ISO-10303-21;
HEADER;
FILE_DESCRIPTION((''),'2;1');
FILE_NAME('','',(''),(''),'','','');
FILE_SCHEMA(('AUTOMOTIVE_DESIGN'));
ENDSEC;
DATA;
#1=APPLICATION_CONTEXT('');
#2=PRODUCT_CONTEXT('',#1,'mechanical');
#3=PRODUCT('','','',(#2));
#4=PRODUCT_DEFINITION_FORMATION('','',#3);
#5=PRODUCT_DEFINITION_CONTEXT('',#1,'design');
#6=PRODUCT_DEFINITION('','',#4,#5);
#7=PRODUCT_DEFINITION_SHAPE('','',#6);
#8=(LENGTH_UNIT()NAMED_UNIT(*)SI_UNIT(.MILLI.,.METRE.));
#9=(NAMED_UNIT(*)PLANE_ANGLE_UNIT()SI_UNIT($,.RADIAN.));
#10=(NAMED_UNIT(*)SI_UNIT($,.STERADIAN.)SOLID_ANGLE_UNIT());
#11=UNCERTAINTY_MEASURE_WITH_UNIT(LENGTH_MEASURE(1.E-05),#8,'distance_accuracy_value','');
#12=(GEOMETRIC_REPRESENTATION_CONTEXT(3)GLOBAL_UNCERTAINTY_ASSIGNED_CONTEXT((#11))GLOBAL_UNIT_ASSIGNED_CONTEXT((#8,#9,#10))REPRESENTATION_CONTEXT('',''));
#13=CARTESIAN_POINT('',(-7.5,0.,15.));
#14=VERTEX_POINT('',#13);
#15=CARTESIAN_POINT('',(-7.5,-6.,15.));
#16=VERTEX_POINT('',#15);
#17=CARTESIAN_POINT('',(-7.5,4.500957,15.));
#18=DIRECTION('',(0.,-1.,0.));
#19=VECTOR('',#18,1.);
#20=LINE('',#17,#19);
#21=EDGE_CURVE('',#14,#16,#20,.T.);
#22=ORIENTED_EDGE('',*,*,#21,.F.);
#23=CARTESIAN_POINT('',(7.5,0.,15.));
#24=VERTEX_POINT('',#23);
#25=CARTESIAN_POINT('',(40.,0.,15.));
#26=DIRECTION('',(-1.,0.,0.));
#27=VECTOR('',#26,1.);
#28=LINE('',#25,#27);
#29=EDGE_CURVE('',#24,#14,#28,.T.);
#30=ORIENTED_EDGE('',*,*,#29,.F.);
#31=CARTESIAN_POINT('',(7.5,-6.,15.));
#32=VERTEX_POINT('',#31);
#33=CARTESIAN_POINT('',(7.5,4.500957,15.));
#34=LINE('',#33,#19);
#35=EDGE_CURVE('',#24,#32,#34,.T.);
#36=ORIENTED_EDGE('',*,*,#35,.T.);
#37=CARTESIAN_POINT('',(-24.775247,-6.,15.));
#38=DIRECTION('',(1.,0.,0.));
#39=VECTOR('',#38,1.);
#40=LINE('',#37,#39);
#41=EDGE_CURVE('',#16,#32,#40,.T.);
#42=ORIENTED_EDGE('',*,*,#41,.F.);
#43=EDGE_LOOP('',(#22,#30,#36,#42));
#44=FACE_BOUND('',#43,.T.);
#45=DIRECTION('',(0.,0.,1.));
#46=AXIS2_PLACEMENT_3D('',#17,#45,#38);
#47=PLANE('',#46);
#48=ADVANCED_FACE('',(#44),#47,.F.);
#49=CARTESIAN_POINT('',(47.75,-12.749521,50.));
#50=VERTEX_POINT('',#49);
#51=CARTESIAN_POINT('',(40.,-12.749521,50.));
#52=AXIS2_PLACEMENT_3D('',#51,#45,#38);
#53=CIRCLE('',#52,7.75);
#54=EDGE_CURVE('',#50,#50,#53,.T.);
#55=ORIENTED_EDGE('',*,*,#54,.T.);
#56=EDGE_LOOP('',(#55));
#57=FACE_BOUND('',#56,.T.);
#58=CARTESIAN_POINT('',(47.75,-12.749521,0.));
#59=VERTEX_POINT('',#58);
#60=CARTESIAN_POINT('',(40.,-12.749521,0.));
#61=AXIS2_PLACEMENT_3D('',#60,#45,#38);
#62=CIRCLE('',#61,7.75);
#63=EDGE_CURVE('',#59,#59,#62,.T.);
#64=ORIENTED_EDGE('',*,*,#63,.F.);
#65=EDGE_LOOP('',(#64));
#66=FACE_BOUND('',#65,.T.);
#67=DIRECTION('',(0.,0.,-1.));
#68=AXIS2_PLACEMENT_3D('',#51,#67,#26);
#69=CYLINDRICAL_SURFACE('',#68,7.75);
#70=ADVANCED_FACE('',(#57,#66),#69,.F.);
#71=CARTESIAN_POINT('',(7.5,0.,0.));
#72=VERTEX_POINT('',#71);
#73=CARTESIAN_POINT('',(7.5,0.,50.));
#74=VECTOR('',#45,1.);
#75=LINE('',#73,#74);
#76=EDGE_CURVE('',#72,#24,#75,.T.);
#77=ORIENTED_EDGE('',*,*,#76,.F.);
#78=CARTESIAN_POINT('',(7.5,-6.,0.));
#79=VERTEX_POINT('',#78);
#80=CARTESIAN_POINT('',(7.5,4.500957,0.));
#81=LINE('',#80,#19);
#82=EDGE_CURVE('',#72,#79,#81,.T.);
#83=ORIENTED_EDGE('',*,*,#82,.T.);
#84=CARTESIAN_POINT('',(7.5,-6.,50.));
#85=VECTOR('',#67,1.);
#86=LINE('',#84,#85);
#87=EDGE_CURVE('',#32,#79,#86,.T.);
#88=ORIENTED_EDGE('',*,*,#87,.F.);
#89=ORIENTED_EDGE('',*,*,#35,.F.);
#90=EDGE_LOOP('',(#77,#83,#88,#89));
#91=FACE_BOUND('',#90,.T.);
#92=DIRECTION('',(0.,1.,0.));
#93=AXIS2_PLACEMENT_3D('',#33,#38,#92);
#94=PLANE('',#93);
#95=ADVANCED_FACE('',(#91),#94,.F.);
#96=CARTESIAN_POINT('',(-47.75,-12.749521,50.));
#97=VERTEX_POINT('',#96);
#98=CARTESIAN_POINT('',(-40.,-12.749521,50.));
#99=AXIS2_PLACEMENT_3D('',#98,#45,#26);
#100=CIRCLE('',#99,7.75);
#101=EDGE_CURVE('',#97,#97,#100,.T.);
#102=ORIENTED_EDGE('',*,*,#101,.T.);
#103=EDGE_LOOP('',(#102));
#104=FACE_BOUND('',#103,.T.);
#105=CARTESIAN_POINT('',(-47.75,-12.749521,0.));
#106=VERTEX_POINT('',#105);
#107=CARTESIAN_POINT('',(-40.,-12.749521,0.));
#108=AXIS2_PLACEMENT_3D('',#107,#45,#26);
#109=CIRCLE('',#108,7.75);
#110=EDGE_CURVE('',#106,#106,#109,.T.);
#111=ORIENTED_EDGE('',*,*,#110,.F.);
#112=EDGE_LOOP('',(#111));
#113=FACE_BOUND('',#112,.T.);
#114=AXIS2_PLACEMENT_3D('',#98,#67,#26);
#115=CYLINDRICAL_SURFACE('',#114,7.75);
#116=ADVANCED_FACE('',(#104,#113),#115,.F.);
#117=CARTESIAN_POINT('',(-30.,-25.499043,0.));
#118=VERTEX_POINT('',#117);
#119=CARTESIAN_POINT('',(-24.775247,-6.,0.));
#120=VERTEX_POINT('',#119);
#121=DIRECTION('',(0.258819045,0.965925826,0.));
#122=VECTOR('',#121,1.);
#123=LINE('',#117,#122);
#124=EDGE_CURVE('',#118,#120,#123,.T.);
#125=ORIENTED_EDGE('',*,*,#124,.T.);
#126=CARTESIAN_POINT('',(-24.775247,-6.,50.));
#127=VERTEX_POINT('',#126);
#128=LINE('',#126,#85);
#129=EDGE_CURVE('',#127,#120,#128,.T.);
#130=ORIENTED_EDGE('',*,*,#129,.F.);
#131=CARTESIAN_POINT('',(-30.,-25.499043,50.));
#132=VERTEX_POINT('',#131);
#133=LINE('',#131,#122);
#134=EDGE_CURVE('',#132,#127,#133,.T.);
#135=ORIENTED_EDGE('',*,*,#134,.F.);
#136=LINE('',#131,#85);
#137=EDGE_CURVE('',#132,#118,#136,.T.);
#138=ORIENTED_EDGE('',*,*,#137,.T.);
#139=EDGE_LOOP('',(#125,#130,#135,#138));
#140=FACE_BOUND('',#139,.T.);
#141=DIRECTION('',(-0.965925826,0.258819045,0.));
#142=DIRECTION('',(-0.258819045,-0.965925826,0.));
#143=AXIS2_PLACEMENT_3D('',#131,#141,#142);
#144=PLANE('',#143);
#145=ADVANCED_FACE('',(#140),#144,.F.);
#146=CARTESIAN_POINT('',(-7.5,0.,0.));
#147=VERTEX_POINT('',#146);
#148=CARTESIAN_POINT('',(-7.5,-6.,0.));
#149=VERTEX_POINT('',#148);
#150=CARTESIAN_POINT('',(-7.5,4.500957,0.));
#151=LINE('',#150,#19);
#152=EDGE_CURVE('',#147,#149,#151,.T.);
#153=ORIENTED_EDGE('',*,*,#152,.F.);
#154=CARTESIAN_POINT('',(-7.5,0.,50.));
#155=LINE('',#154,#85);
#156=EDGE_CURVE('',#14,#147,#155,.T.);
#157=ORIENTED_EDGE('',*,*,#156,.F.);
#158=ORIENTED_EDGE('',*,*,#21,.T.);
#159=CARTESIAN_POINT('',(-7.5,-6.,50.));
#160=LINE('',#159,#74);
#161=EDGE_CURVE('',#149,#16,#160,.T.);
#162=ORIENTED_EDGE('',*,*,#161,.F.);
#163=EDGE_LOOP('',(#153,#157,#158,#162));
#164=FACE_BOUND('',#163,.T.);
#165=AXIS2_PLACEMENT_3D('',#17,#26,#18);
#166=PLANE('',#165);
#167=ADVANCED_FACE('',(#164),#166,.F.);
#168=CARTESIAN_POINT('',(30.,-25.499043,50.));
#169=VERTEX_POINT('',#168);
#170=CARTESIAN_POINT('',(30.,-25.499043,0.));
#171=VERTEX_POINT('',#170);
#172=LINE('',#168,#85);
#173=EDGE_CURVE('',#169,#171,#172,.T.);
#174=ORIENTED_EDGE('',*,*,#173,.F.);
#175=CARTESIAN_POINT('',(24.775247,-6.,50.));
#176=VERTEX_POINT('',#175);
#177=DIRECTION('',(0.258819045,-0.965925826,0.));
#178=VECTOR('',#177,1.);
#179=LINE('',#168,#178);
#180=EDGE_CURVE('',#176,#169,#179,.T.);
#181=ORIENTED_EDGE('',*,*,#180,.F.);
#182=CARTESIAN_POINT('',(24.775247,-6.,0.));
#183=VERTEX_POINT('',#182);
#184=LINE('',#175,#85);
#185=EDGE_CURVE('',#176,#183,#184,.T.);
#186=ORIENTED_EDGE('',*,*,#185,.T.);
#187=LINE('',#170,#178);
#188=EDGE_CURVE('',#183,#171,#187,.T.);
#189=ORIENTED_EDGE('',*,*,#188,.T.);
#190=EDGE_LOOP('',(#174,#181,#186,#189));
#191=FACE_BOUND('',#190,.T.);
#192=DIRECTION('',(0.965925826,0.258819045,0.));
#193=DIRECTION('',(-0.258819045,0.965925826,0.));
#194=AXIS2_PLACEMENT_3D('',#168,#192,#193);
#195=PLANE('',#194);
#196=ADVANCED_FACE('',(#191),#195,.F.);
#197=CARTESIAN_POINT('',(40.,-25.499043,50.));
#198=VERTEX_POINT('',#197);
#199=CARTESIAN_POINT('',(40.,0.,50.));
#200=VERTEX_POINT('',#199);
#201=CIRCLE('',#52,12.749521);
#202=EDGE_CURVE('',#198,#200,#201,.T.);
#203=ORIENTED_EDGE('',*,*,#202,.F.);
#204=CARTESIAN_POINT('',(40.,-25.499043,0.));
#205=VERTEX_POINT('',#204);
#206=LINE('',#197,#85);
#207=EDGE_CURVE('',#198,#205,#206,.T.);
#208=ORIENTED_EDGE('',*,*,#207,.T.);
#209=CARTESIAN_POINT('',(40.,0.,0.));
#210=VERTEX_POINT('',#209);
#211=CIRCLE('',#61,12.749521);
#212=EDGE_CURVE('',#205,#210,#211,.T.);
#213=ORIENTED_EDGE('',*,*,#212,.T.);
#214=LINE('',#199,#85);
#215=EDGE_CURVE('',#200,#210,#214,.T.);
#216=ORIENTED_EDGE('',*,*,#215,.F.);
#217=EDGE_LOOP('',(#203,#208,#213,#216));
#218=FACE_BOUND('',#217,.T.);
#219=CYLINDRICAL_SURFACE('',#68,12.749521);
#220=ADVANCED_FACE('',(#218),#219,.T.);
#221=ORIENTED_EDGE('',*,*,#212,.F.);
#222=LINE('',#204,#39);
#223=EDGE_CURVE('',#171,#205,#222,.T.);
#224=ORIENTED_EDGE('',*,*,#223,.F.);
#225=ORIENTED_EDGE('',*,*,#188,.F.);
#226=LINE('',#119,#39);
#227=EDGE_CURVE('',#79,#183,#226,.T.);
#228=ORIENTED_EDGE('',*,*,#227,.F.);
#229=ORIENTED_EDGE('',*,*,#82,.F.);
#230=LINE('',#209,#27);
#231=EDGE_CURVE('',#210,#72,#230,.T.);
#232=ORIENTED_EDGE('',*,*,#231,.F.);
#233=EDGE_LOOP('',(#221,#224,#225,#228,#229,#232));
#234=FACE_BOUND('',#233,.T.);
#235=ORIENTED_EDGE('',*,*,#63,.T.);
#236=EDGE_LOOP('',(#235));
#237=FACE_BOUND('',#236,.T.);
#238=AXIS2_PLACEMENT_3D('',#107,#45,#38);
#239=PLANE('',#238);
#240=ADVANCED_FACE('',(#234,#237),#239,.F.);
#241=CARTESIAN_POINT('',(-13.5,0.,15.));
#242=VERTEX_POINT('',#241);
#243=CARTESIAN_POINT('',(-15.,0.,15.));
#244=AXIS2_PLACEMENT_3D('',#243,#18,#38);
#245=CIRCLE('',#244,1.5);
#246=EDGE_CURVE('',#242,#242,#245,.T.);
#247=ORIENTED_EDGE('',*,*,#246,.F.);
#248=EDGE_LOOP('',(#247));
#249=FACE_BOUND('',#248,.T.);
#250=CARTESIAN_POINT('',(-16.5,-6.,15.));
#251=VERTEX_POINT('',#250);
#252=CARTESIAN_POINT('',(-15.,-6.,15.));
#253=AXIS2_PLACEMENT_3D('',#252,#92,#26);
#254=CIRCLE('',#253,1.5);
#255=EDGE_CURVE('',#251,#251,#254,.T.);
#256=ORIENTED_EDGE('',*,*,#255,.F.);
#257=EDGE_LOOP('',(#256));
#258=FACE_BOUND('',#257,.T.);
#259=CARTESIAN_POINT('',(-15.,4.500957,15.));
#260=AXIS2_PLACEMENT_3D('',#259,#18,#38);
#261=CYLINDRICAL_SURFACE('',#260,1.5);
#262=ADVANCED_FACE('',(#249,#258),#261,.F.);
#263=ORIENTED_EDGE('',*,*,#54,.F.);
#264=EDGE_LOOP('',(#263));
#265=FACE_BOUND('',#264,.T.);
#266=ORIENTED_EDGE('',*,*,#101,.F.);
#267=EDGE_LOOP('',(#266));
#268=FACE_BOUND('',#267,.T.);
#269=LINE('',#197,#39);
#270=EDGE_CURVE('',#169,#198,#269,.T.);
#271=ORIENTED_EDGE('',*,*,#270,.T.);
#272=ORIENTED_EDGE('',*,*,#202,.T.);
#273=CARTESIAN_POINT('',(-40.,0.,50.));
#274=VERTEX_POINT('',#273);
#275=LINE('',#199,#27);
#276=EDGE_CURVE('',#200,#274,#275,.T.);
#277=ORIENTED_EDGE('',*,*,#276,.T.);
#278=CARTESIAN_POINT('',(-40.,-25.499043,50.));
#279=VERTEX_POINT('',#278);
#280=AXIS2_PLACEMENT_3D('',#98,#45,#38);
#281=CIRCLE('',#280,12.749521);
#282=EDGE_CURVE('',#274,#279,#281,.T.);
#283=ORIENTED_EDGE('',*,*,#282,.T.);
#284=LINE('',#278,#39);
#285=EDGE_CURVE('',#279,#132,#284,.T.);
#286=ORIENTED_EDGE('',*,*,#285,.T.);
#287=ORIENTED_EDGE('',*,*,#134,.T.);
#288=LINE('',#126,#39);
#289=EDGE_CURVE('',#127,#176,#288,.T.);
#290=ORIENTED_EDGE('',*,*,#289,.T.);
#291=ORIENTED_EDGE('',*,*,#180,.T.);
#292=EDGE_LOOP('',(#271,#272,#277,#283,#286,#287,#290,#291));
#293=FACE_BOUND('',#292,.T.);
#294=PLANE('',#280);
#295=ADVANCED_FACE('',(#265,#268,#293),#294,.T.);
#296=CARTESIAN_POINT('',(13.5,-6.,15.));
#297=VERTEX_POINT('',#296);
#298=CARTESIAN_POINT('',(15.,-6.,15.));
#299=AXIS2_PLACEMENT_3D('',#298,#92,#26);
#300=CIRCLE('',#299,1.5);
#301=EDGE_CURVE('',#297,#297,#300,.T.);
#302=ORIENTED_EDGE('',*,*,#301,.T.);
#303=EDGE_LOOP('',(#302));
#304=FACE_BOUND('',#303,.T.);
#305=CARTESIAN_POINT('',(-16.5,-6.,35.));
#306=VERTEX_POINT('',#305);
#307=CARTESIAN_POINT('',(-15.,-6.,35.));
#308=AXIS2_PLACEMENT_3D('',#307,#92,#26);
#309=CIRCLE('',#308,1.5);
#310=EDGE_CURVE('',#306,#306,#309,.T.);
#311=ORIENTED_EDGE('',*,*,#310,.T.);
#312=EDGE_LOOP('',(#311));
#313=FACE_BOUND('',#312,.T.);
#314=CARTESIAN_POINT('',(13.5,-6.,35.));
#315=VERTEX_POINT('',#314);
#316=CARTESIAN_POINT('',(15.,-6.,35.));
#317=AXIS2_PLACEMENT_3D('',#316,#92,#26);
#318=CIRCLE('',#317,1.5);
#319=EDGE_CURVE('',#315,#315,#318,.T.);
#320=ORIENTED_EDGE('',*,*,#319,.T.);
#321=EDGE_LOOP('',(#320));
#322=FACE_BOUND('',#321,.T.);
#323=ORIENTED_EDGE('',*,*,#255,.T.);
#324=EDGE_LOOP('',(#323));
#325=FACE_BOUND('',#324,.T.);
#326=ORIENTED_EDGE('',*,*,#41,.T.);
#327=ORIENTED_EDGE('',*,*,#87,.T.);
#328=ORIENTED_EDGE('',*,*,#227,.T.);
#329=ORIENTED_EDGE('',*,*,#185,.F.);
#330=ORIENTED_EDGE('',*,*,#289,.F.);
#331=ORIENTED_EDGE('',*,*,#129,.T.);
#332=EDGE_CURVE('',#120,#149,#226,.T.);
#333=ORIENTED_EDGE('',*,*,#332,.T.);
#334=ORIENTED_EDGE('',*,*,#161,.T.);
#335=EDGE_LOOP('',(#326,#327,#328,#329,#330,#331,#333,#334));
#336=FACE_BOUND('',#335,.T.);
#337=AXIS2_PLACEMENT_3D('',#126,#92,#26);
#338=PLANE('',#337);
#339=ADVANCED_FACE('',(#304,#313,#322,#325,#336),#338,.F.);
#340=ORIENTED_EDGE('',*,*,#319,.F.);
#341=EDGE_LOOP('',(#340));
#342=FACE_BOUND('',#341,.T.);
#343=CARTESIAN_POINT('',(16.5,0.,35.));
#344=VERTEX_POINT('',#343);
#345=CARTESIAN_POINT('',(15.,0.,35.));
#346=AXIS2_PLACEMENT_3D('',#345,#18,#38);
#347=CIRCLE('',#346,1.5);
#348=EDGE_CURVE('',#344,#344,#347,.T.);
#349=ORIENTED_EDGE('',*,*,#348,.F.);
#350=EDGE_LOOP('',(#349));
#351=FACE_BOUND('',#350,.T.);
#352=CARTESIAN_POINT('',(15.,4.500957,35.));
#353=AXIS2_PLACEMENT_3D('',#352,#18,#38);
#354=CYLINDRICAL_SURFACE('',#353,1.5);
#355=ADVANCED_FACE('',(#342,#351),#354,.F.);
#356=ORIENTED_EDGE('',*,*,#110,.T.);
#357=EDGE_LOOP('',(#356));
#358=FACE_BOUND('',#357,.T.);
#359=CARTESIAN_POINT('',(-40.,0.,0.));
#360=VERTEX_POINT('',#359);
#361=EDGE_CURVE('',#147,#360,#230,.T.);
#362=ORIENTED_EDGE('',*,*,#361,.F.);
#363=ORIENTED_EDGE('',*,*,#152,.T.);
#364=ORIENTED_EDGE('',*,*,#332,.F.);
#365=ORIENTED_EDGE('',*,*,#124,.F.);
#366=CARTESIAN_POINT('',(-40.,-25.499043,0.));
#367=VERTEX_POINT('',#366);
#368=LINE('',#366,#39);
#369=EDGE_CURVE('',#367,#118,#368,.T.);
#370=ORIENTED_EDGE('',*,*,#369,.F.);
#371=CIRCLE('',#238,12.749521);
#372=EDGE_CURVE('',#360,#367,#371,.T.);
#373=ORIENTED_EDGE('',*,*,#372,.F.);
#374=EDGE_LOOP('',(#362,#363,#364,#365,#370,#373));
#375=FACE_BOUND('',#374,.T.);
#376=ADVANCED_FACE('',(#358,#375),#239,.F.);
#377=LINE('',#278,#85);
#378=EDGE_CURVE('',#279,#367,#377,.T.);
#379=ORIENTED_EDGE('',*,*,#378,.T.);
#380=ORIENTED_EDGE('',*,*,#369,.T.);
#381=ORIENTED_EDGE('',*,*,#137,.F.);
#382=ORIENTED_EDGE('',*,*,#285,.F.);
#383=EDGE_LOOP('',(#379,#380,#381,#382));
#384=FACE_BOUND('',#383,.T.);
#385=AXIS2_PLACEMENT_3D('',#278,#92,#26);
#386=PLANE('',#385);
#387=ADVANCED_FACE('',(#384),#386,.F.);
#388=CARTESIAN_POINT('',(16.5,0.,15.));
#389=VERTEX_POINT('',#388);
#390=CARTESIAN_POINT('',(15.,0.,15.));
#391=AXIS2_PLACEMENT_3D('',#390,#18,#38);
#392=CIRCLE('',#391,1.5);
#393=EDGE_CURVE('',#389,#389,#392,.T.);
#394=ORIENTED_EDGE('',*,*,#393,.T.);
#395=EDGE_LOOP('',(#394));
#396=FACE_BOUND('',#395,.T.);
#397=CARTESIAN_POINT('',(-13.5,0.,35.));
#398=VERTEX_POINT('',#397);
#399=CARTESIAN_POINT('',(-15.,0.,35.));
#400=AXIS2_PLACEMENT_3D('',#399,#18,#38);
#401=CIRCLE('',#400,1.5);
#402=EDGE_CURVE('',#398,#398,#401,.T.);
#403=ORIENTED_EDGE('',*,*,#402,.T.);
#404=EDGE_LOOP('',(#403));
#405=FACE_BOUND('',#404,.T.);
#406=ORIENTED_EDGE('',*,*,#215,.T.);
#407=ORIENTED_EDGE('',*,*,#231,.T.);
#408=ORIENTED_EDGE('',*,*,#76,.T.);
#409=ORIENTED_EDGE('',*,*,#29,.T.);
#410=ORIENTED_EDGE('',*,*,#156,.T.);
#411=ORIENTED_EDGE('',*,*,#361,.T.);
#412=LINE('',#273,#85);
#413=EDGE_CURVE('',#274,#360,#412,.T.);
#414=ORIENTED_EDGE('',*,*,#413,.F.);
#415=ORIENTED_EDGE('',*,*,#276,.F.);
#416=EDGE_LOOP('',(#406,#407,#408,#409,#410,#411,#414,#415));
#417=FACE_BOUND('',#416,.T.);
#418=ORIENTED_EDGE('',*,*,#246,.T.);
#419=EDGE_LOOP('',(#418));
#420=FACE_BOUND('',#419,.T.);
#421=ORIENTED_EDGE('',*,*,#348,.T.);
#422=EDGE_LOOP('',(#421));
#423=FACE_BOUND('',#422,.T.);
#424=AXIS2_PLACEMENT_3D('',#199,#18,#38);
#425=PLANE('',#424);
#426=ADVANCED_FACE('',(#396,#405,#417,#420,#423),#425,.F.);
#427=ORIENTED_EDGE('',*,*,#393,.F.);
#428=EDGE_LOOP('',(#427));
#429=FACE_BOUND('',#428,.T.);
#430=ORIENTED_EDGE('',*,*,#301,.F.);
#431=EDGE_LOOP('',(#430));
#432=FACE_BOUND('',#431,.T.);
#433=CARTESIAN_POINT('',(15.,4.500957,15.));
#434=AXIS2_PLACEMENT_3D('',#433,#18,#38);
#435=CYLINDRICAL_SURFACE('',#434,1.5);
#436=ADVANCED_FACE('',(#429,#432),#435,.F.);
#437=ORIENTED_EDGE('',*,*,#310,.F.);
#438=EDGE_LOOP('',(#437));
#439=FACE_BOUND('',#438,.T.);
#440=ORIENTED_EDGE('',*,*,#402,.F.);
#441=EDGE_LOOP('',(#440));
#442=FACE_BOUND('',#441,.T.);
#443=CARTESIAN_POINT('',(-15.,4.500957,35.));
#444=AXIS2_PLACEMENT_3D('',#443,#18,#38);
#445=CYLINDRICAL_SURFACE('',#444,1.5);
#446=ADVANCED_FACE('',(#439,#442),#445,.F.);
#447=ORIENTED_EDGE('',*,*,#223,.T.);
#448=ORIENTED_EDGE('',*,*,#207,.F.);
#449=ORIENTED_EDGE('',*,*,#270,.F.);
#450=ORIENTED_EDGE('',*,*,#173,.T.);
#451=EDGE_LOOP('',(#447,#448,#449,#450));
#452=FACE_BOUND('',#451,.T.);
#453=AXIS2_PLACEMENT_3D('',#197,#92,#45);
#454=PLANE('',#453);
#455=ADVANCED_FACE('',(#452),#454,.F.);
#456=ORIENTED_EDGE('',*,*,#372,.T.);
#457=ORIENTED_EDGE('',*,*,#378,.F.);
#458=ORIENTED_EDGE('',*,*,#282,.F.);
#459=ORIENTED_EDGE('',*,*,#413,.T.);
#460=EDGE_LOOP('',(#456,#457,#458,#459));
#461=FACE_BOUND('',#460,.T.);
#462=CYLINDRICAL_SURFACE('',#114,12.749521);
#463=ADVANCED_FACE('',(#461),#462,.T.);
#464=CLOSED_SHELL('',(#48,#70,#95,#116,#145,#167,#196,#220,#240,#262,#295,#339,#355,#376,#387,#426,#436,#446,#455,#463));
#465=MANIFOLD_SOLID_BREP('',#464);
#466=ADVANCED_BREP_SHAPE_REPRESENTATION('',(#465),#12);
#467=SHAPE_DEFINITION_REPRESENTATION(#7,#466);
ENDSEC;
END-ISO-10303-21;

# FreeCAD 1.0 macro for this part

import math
import FreeCAD as App
import Part
import Sketcher
Q = App.Units.Quantity


def add_polygon(sketch, points):
    """Adds a closed chain of lines whose ends are joined by coincident constraints."""
    first, n = sketch.GeometryCount, len(points)
    for a, b in zip(points, points[1:] + points[:1]):
        sketch.addGeometry(Part.LineSegment(App.Vector(*a, 0), App.Vector(*b, 0)), False)
    for i in range(n):
        sketch.addConstraint(Sketcher.Constraint("Coincident", first + i, 2, first + (i + 1) % n, 1))

doc = App.newDocument("Part")
body = doc.addObject("PartDesign::Body", "Body")

# Sketch on XY plane
sketch1 = body.newObject("Sketcher::SketchObject", "Sketch")
sketch1.AttachmentSupport = (doc.getObject("XY_Plane"), [""])
sketch1.MapMode = "FlatFace"
sketch1.addGeometry([
    Part.LineSegment(App.Vector(40, 0, 0), App.Vector(-40, 0, 0)),  # 0
    Part.ArcOfCircle(Part.Circle(App.Vector(-40, -13, 0), App.Vector(0, 0, 1), 13), math.radians(90), math.radians(270)),  # 1
    Part.LineSegment(App.Vector(-40, -25, 0), App.Vector(-30, -25, 0)),  # 2
    Part.LineSegment(App.Vector(-30, -25, 0), App.Vector(-25, -6, 0)),  # 3
    Part.LineSegment(App.Vector(-25, -6, 0), App.Vector(25, -6, 0)),  # 4
    Part.LineSegment(App.Vector(25, -6, 0), App.Vector(30, -25, 0)),  # 5
    Part.LineSegment(App.Vector(30, -25, 0), App.Vector(40, -25, 0)),  # 6
    Part.ArcOfCircle(Part.Circle(App.Vector(40, -13, 0), App.Vector(0, 0, 1), 13), math.radians(-90), math.radians(90)),  # 7
    Part.Circle(App.Vector(-40, -13, 0), App.Vector(0, 0, 1), 8),  # 8
    Part.Circle(App.Vector(40, -13, 0), App.Vector(0, 0, 1), 8),  # 9
], False)
sketch1.addConstraint([
    Sketcher.Constraint("Tangent", 0, 2, 1, 1),
    Sketcher.Constraint("Tangent", 1, 2, 2, 1),
    Sketcher.Constraint("Coincident", 2, 2, 3, 1),
    Sketcher.Constraint("Coincident", 3, 2, 4, 1),
    Sketcher.Constraint("Coincident", 4, 2, 5, 1),
    Sketcher.Constraint("Coincident", 5, 2, 6, 1),
    Sketcher.Constraint("Tangent", 6, 2, 7, 1),
    Sketcher.Constraint("Tangent", 7, 2, 0, 1),
    Sketcher.Constraint("Horizontal", 0),
    Sketcher.Constraint("Horizontal", 2),
    Sketcher.Constraint("Horizontal", 4),
    Sketcher.Constraint("Horizontal", 6),
    Sketcher.Constraint("Coincident", 8, 3, 1, 3),
    Sketcher.Constraint("Coincident", 9, 3, 7, 3),
    Sketcher.Constraint("Equal", 1, 7),
    Sketcher.Constraint("Equal", 8, 9),
    Sketcher.Constraint("Symmetric", 0, 2, 7, 2, -1, 1),
    Sketcher.Constraint("Equal", 2, 6),
    Sketcher.Constraint("Equal", 3, 5),
    Sketcher.Constraint("Diameter", 8, Q("15.5 mm")),
    Sketcher.Constraint("DistanceX", 0, 2, 0, 1, Q("80 mm")),
    Sketcher.Constraint("DistanceX", 2, 1, 2, 2, Q("10 mm")),
    Sketcher.Constraint("Angle", 3, Q("75 deg")),
    Sketcher.Constraint("DistanceY", 3, 2, -1, 1, Q("6 mm")),
    Sketcher.Constraint("Radius", 1, Q("12.749521 mm")),
])
pad1 = body.newObject("PartDesign::Pad", "Pad")
pad1.Profile = sketch1
pad1.Length = 50

# Sketch on XZ plane
sketch2 = body.newObject("Sketcher::SketchObject", "Sketch001")
sketch2.AttachmentSupport = (doc.getObject("XZ_Plane"), [""])
sketch2.MapMode = "FlatFace"
sketch2.AttachmentOffset = App.Placement(App.Vector(0, 0, 25.499043), App.Rotation())
sketch2.addGeometry(Part.Circle(App.Vector(15, 35, 0), App.Vector(0, 0, 1), 1.5), False)  # 0
sketch2.addGeometry(Part.Circle(App.Vector(15, 15, 0), App.Vector(0, 0, 1), 1.5), False)  # 1
sketch2.addGeometry(Part.Circle(App.Vector(-15, 15, 0), App.Vector(0, 0, 1), 1.5), False)  # 2
sketch2.addGeometry(Part.Circle(App.Vector(-15, 35, 0), App.Vector(0, 0, 1), 1.5), False)  # 3
add_polygon(sketch2, [(-7.5, 15), (-7.5, 0), (7.5, 0), (7.5, 15)])  # lines 4-7
sketch2.addConstraint([
    Sketcher.Constraint("Vertical", 4),
    Sketcher.Constraint("Horizontal", 5),
    Sketcher.Constraint("Vertical", 6),
    Sketcher.Constraint("Horizontal", 7),
    Sketcher.Constraint("Equal", 0, 1),
    Sketcher.Constraint("Equal", 1, 2),
    Sketcher.Constraint("Equal", 2, 3),
    Sketcher.Constraint("Symmetric", 4, 2, 5, 2, -1, 1),
    Sketcher.Constraint("Symmetric", 1, 3, 2, 3, -2),
    Sketcher.Constraint("Symmetric", 0, 3, 3, 3, -2),
    Sketcher.Constraint("Horizontal", 2, 3, 6, 2),
    Sketcher.Constraint("Vertical", 0, 3, 1, 3),
    Sketcher.Constraint("Equal", 7, 4),
    Sketcher.Constraint("Diameter", 0, Q("3 mm")),
    Sketcher.Constraint("DistanceX", 5, 1, 5, 2, Q("15 mm")),
    Sketcher.Constraint("DistanceX", -1, 1, 0, 3, Q("15 mm")),
    Sketcher.Constraint("DistanceY", -1, 1, 0, 3, Q("35 mm")),
])
pocket1 = body.newObject("PartDesign::Pocket", "Pocket")
pocket1.Profile = sketch2
pocket1.Length = 30

doc.recompute()
